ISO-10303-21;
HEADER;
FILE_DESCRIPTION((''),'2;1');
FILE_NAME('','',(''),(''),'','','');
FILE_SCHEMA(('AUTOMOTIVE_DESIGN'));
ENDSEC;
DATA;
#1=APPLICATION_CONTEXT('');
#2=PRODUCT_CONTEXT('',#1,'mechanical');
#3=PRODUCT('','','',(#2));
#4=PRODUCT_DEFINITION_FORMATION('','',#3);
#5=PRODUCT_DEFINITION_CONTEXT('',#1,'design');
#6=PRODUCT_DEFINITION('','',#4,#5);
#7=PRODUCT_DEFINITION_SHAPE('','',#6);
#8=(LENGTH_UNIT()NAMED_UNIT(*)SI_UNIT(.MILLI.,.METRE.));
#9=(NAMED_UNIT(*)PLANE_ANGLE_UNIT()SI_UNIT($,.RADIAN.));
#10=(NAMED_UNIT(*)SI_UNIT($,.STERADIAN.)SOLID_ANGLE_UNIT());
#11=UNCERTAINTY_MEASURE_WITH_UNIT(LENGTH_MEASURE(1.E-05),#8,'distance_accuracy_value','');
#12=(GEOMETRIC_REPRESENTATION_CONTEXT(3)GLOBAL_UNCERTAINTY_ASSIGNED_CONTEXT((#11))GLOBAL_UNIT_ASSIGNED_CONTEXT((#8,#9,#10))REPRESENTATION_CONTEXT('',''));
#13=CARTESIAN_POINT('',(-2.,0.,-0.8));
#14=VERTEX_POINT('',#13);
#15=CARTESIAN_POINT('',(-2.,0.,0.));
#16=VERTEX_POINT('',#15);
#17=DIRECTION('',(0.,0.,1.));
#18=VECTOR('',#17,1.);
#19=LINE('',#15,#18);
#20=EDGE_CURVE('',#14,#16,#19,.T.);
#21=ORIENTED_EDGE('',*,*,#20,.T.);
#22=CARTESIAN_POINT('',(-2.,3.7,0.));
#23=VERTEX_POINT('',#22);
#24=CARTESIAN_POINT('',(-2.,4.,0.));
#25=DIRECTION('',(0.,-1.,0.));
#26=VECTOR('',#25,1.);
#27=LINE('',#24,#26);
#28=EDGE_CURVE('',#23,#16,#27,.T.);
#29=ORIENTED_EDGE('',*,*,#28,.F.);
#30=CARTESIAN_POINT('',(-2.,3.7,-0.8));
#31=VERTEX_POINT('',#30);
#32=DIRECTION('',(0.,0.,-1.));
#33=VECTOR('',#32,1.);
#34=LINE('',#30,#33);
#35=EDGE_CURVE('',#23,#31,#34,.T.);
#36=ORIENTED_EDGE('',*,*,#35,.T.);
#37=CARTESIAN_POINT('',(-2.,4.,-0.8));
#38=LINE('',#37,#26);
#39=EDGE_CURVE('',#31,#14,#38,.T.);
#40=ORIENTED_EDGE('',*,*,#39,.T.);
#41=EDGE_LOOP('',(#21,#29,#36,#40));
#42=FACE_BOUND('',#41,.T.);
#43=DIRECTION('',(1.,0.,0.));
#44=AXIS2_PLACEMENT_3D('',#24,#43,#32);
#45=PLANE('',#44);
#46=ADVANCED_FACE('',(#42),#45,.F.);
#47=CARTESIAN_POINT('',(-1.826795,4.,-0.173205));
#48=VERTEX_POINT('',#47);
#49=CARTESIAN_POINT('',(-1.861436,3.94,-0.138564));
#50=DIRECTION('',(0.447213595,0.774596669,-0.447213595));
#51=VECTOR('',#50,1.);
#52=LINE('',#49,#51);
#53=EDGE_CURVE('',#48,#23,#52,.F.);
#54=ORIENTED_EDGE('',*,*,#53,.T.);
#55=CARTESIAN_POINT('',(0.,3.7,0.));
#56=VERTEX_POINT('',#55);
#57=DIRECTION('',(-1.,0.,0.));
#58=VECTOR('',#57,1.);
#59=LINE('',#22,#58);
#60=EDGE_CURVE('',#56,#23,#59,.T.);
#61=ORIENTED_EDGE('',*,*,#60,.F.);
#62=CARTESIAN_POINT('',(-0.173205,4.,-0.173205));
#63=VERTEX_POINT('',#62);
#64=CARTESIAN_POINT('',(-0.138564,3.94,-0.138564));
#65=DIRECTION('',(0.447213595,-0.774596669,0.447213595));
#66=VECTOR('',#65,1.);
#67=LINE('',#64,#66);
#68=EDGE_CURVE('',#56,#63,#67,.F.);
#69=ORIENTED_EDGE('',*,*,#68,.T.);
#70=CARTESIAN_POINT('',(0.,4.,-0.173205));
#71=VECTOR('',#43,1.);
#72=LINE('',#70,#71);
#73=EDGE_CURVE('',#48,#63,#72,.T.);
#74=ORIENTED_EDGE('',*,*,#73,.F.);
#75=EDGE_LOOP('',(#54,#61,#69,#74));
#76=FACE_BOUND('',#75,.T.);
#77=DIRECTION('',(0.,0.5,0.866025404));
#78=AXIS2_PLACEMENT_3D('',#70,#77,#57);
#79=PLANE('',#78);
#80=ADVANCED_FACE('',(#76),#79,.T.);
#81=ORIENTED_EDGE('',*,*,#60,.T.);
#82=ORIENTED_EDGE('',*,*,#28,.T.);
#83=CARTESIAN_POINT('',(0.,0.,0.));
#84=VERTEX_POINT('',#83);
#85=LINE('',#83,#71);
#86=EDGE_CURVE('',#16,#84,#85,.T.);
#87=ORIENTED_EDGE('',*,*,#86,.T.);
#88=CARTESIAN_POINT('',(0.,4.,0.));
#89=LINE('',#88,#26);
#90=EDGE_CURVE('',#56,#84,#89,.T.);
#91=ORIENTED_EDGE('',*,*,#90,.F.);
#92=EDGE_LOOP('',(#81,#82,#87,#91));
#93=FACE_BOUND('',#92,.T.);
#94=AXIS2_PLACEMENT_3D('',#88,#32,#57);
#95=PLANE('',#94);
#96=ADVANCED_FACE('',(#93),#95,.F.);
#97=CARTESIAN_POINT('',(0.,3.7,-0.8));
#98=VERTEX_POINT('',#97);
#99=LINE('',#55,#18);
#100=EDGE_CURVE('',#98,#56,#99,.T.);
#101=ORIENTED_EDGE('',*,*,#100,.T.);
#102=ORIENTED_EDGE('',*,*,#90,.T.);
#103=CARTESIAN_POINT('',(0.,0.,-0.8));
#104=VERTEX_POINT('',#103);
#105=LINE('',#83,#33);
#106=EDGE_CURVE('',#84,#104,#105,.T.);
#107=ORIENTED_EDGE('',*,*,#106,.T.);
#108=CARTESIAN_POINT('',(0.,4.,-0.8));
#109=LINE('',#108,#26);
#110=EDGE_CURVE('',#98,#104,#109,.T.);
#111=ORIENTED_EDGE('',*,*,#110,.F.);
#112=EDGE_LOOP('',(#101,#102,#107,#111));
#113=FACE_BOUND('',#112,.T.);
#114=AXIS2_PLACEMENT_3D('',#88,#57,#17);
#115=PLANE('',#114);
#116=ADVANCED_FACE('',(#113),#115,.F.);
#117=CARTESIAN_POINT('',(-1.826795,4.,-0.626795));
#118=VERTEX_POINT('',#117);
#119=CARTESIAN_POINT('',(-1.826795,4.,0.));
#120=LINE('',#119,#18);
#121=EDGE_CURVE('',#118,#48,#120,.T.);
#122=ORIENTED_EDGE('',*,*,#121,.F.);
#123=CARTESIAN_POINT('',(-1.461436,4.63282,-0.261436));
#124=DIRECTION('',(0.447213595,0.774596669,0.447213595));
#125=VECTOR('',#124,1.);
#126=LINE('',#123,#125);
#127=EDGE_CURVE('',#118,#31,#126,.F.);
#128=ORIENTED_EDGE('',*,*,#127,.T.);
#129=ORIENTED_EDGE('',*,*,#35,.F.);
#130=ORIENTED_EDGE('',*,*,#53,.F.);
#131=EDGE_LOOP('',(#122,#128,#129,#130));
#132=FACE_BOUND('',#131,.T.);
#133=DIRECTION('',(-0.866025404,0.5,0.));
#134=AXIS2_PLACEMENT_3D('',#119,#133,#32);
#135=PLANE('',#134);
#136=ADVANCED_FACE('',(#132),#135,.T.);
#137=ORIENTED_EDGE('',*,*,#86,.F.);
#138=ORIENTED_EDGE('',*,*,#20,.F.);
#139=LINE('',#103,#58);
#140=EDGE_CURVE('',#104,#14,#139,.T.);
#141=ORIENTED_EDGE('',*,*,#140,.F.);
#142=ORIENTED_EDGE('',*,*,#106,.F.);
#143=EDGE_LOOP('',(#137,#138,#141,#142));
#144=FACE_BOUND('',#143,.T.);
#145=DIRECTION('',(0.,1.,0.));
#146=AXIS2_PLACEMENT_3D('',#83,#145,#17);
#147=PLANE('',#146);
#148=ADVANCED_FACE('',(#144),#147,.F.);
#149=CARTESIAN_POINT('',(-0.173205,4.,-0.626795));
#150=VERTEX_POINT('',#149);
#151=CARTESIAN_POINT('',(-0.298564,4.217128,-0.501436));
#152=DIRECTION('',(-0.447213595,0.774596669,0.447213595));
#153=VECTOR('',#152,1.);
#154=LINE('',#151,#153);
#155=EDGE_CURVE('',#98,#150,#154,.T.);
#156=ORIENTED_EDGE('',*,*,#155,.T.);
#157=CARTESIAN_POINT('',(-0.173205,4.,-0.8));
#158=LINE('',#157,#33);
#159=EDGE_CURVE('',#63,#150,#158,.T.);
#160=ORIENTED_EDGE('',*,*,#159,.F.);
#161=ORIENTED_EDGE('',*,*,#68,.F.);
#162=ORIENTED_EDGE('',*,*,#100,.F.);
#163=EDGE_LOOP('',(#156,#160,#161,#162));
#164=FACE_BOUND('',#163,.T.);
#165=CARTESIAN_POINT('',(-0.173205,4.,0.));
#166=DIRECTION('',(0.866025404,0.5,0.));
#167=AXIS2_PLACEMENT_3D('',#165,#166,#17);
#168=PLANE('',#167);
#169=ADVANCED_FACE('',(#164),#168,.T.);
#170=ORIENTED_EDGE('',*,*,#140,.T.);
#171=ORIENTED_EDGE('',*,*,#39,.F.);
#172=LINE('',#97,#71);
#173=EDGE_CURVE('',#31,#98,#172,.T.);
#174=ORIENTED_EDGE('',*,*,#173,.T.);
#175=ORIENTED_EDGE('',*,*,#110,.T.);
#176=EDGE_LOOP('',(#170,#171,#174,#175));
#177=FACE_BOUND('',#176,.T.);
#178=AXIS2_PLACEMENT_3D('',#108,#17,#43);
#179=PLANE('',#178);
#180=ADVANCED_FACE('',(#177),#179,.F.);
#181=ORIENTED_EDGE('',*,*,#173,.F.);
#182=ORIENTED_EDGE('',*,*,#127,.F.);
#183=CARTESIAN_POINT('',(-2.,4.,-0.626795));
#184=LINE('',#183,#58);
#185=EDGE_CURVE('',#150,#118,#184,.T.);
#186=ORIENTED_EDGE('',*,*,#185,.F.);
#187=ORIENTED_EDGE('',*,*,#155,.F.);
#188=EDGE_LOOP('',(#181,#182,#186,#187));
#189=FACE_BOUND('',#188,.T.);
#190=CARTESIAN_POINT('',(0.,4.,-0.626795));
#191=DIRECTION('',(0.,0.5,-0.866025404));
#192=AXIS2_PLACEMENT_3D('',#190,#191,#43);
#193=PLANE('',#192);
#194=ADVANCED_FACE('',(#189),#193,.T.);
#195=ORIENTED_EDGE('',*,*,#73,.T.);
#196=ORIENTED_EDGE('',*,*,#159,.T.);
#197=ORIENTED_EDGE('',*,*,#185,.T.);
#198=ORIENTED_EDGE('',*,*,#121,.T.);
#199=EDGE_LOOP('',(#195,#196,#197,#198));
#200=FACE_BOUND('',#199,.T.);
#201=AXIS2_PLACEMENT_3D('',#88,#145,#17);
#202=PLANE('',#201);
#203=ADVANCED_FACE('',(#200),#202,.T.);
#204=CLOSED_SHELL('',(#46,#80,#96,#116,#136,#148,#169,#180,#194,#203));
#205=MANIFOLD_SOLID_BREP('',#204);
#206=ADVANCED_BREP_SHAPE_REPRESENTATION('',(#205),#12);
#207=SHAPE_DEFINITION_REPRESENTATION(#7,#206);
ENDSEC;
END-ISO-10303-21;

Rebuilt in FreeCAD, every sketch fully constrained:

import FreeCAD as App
import Part
import Sketcher


def edges_at(feature, points):
    """Names of the edges that pass closest to the given points."""
    edges = feature.Shape.Edges
    near = lambda p: min(range(len(edges)), key=lambda i: edges[i].distToShape(Part.Vertex(*p))[0])
    return sorted({f"Edge{near(p) + 1}" for p in points})

doc = App.newDocument("Part")
params = doc.addObject("Spreadsheet::Sheet", "Params")
for row, (alias, value) in enumerate([
    ("sketch1_width", "2 mm"),
    ("sketch1_height", "0.8 mm"),
    ("pad1_length", "4 mm"),
    ("chamfer_size", "0.3 mm"),
    ("chamfer_size2", "0.173205 mm"),
    ("chamfer2_size", "0.3 mm"),
    ("chamfer2_size2", "0.173205 mm"),
    ("chamfer3_size", "0.3 mm"),
    ("chamfer3_size2", "0.173205 mm"),
    ("chamfer4_size", "0.3 mm"),
    ("chamfer4_size2", "0.173205 mm"),
], start=1):
    params.set(f"A{row}", alias)
    params.set(f"B{row}", "=" + value)
    params.setAlias(f"B{row}", alias)

body = doc.addObject("PartDesign::Body", "Body")

sketch1 = body.newObject("Sketcher::SketchObject", "Sketch")
sketch1.AttachmentSupport = (doc.getObject("XZ_Plane"), [""])
sketch1.MapMode = "FlatFace"
sketch1.addGeometry([
    Part.LineSegment(App.Vector(0, 0, 0), App.Vector(0, -0.8, 0)),
    Part.LineSegment(App.Vector(0, -0.8, 0), App.Vector(-2, -0.8, 0)),
    Part.LineSegment(App.Vector(-2, -0.8, 0), App.Vector(-2, 0, 0)),
    Part.LineSegment(App.Vector(-2, 0, 0), App.Vector(0, 0, 0)),
], False)
sketch1.addConstraint([
    Sketcher.Constraint("Coincident", 0, 2, 1, 1),
    Sketcher.Constraint("Coincident", 1, 2, 2, 1),
    Sketcher.Constraint("Coincident", 2, 2, 3, 1),
    Sketcher.Constraint("Coincident", 3, 2, 0, 1),
    Sketcher.Constraint("Vertical", 0),
    Sketcher.Constraint("Horizontal", 1),
    Sketcher.Constraint("Vertical", 2),
    Sketcher.Constraint("Horizontal", 3),
    Sketcher.Constraint("Coincident", 3, 2, -1, 1),
    Sketcher.Constraint("DistanceX", 1, 2, 1, 1, 2.0),
    Sketcher.Constraint("DistanceY", 0, 2, 0, 1, 0.8),
])
sketch1.setExpression("Constraints[9]", "Params.sketch1_width")
sketch1.setExpression("Constraints[10]", "Params.sketch1_height")
pad1 = body.newObject("PartDesign::Pad", "Pad")
pad1.Profile = sketch1
pad1.setExpression("Length", "Params.pad1_length")
pad1.Reversed = True
doc.recompute()

chamfer = body.newObject("PartDesign::Chamfer", "Chamfer")
chamfer.Base = (pad1, edges_at(pad1, [(-2, 4, -0.4)]))
chamfer.ChamferType = "Two distances"
chamfer.setExpression("Size", "Params.chamfer_size")
chamfer.setExpression("Size2", "Params.chamfer_size2")
doc.recompute()

chamfer2 = body.newObject("PartDesign::Chamfer", "Chamfer001")
chamfer2.Base = (chamfer, edges_at(chamfer, [(-0.913, 4, 0)]))
chamfer2.ChamferType = "Two distances"
chamfer2.setExpression("Size", "Params.chamfer2_size")
chamfer2.setExpression("Size2", "Params.chamfer2_size2")
chamfer2.FlipDirection = True
doc.recompute()

chamfer3 = body.newObject("PartDesign::Chamfer", "Chamfer002")
chamfer3.Base = (chamfer2, edges_at(chamfer2, [(0, 4, -0.487)]))
chamfer3.ChamferType = "Two distances"
chamfer3.setExpression("Size", "Params.chamfer3_size")
chamfer3.setExpression("Size2", "Params.chamfer3_size2")
chamfer3.FlipDirection = True
doc.recompute()

chamfer4 = body.newObject("PartDesign::Chamfer", "Chamfer003")
chamfer4.Base = (chamfer3, edges_at(chamfer3, [(-1, 4, -0.8)]))
chamfer4.ChamferType = "Two distances"
chamfer4.setExpression("Size", "Params.chamfer4_size")
chamfer4.setExpression("Size2", "Params.chamfer4_size2")
chamfer4.FlipDirection = True

doc.recompute()
